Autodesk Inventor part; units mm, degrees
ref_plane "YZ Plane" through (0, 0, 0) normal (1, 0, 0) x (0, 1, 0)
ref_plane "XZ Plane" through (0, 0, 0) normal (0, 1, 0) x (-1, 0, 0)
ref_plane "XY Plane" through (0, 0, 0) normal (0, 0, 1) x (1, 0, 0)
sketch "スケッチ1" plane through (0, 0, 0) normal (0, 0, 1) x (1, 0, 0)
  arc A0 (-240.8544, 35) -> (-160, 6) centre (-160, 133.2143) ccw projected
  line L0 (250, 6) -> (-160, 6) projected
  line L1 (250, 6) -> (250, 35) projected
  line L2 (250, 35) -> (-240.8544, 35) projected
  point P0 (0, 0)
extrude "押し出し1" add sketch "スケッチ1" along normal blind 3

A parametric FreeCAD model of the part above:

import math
import FreeCAD as App
import Part
import Sketcher
from FreeCAD import Vector

doc = App.newDocument("Part")
body = doc.addObject("PartDesign::Body", "Body")

# Sketch on XY plane
sketch1 = body.newObject("Sketcher::SketchObject", "Sketch")
sketch1.AttachmentSupport = (doc.getObject("XY_Plane"), [""])
sketch1.MapMode = "FlatFace"
sketch1.addGeometry([
    Part.LineSegment(Vector(250, 35, 0), Vector(-241, 35, 0)),
    Part.ArcOfCircle(Part.Circle(Vector(-160, 133, 0), Vector(0, 0, 1), 127), math.radians(-129), math.radians(-90)),
    Part.LineSegment(Vector(-160, 6, 0), Vector(250, 6, 0)),
    Part.LineSegment(Vector(250, 6, 0), Vector(250, 35, 0)),
], False)
sketch1.addConstraint([
    Sketcher.Constraint("Coincident", 0, 2, 1, 1),
    Sketcher.Constraint("Tangent", 1, 2, 2, 1),
    Sketcher.Constraint("Coincident", 2, 2, 3, 1),
    Sketcher.Constraint("Coincident", 3, 2, 0, 1),
    Sketcher.Constraint("Horizontal", 0),
    Sketcher.Constraint("Horizontal", 2),
    Sketcher.Constraint("Vertical", 3),
    Sketcher.Constraint("DistanceX", 2, 1, 2, 2, 410.0),
    Sketcher.Constraint("DistanceY", 3, 1, 3, 2, 29.0),
    Sketcher.Constraint("DistanceX", 1, 3, -1, 1, 160.0),
    Sketcher.Constraint("DistanceY", -1, 1, 0, 2, 35.0),
    Sketcher.Constraint("Radius", 1, 127.2143),
])
pad1 = body.newObject("PartDesign::Pad", "Pad")
pad1.Profile = sketch1
pad1.Length = 3

doc.recompute()
